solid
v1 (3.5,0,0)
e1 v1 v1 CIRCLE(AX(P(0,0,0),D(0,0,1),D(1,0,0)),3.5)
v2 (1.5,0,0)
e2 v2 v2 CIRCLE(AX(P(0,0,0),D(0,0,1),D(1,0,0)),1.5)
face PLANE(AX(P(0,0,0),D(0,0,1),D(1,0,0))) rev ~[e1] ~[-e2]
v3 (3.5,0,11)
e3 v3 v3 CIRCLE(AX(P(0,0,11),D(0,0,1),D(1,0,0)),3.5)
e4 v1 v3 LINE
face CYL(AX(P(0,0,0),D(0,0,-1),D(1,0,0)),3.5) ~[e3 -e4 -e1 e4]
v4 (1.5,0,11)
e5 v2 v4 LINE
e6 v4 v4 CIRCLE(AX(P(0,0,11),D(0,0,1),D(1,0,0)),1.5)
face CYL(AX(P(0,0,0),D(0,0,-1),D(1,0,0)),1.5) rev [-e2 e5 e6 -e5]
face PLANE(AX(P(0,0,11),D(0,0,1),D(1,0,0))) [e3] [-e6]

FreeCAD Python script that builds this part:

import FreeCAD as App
import Part
import Sketcher
from FreeCAD import Vector

doc = App.newDocument("Part")
body = doc.addObject("PartDesign::Body", "Body")

# Sketch on XY plane
sketch1 = body.newObject("Sketcher::SketchObject", "Sketch")
sketch1.AttachmentSupport = (doc.getObject("XY_Plane"), [""])
sketch1.MapMode = "FlatFace"
sketch1.addGeometry(Part.Circle(Vector(0, 0, 0), Vector(0, 0, 1), 3.5), False)
sketch1.addGeometry(Part.Circle(Vector(0, 0, 0), Vector(0, 0, 1), 1.5), False)
sketch1.addConstraint(Sketcher.Constraint("Coincident", 0, 3, -1, 1))
sketch1.addConstraint(Sketcher.Constraint("Coincident", 1, 3, -1, 1))
sketch1.addConstraint(Sketcher.Constraint("Diameter", 0, 7.0))
sketch1.addConstraint(Sketcher.Constraint("Diameter", 1, 3.0))
pad1 = body.newObject("PartDesign::Pad", "Pad")
pad1.Profile = sketch1
pad1.Length = 11

doc.recompute()
